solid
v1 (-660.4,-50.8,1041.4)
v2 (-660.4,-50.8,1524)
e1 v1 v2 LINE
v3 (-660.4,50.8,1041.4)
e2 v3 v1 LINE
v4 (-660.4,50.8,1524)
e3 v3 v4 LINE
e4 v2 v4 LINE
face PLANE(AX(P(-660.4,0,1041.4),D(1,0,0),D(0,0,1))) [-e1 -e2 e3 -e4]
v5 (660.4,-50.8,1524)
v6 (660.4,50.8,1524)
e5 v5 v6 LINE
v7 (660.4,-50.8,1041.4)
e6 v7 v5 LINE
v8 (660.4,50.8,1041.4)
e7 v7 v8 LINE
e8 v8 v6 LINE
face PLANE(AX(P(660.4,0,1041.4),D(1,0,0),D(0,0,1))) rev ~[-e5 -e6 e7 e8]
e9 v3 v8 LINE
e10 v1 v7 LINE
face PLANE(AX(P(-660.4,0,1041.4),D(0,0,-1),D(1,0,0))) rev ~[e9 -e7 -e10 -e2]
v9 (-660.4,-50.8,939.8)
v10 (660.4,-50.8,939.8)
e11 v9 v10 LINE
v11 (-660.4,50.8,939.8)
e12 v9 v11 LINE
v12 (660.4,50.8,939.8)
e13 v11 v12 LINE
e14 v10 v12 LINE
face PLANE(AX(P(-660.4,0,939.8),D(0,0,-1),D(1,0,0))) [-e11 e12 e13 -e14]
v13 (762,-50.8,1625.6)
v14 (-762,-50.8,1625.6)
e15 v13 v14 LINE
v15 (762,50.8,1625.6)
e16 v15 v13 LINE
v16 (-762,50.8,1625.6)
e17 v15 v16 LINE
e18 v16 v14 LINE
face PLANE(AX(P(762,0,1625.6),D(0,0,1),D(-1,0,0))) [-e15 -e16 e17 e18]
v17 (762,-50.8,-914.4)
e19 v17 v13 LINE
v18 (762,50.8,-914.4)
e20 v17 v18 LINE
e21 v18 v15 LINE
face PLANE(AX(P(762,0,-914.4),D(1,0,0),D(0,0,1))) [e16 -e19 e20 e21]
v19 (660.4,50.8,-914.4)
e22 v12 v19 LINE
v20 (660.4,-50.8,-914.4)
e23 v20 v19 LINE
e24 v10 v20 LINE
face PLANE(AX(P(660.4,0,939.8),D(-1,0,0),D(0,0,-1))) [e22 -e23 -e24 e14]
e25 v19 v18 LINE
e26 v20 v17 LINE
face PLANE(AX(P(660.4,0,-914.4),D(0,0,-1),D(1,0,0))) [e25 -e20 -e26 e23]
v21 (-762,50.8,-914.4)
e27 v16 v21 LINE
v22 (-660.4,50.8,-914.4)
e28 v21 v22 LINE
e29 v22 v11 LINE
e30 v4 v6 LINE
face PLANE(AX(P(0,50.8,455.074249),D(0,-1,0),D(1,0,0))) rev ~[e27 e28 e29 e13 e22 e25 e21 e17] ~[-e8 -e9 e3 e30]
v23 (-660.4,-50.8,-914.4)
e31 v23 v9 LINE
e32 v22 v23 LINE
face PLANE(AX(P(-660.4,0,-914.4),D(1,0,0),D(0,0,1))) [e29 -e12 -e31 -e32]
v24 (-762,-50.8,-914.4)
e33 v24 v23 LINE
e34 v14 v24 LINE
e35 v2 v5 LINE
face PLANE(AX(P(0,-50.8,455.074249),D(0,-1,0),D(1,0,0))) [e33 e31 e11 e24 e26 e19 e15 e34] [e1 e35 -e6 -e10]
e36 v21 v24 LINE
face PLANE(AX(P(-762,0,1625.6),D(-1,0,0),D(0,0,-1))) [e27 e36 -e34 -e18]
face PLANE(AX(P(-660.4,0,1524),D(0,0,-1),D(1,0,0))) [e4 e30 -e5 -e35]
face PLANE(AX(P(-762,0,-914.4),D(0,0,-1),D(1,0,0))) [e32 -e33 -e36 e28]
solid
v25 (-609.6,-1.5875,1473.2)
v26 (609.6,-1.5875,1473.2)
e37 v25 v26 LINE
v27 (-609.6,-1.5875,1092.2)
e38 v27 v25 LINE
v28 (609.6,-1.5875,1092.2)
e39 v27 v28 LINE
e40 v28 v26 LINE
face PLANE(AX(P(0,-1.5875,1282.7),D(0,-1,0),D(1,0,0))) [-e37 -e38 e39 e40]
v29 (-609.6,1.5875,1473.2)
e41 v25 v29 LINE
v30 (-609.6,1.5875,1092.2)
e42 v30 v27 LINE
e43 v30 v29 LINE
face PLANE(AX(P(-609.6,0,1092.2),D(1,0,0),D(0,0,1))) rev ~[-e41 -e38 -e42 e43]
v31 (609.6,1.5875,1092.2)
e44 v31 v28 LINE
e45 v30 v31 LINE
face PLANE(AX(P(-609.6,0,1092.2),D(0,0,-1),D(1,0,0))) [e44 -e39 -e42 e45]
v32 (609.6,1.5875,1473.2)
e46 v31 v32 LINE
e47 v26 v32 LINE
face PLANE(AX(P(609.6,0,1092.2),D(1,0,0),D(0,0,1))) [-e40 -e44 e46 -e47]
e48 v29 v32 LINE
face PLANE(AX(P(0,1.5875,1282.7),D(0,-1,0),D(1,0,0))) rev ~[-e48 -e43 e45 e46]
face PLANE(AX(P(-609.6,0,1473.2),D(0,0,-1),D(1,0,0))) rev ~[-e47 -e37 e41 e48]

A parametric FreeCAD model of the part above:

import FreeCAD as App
import Part
import Sketcher

V = App.Vector
Q = App.Units.Quantity


def add_polygon(sketch, points):
    """Adds a closed chain of lines whose ends are joined by coincident constraints."""
    first, n = sketch.GeometryCount, len(points)
    for a, b in zip(points, points[1:] + points[:1]):
        sketch.addGeometry(Part.LineSegment(App.Vector(*a, 0), App.Vector(*b, 0)), False)
    for i in range(n):
        sketch.addConstraint(Sketcher.Constraint("Coincident", first + i, 2, first + (i + 1) % n, 1))

doc = App.newDocument("Part")
body = doc.addObject("PartDesign::Body", "Body")

sketch1 = body.newObject("Sketcher::SketchObject", "Sketch")
sketch1.AttachmentSupport = (doc.getObject("XZ_Plane"), [""])
sketch1.MapMode = "FlatFace"
add_polygon(sketch1, [(762, -914), (762, 1626), (-762, 1626), (-762, -914), (-660, -914), (-660, 940), (660, 940), (660, -914)])
add_polygon(sketch1, [(660, 1041), (-660, 1041), (-660, 1524), (660, 1524)])
sketch1.addConstraint(Sketcher.Constraint("Vertical", 0))
sketch1.addConstraint(Sketcher.Constraint("Horizontal", 1))
sketch1.addConstraint(Sketcher.Constraint("Vertical", 2))
sketch1.addConstraint(Sketcher.Constraint("Horizontal", 3))
sketch1.addConstraint(Sketcher.Constraint("Vertical", 4))
sketch1.addConstraint(Sketcher.Constraint("Horizontal", 5))
sketch1.addConstraint(Sketcher.Constraint("Vertical", 6))
sketch1.addConstraint(Sketcher.Constraint("Horizontal", 7))
sketch1.addConstraint(Sketcher.Constraint("Horizontal", 8))
sketch1.addConstraint(Sketcher.Constraint("Vertical", 9))
sketch1.addConstraint(Sketcher.Constraint("Horizontal", 10))
sketch1.addConstraint(Sketcher.Constraint("Vertical", 11))
sketch1.addConstraint(Sketcher.Constraint("Symmetric", 3, 2, 6, 2, -2))
sketch1.addConstraint(Sketcher.Constraint("Vertical", 4, 2, 8, 2))
sketch1.addConstraint(Sketcher.Constraint("Vertical", 6, 2, 10, 2))
sketch1.addConstraint(Sketcher.Constraint("Equal", 3, 7))
sketch1.addConstraint(Sketcher.Constraint("DistanceX", 1, 2, 1, 1, Q("60 in")))
sketch1.addConstraint(Sketcher.Constraint("DistanceX", 3, 1, 3, 2, Q("4 in")))
sketch1.addConstraint(Sketcher.Constraint("DistanceY", 0, 1, 0, 2, Q("100 in")))
sketch1.addConstraint(Sketcher.Constraint("DistanceY", 4, 1, 4, 2, Q("73 in")))
sketch1.addConstraint(Sketcher.Constraint("DistanceY", 9, 1, 9, 2, Q("19 in")))
sketch1.addConstraint(Sketcher.Constraint("DistanceY", -1, 1, 0, 2, Q("64 in")))
sketch1.addConstraint(Sketcher.Constraint("DistanceY", -1, 1, 8, 2, Q("41 in")))
pad1 = body.newObject("PartDesign::Pad", "Pad")
pad1.Profile = sketch1
pad1.Length = Q("4 in")
pad1.Midplane = True
body2 = doc.addObject("PartDesign::Body", "Body001")

sketch2 = body2.newObject("Sketcher::SketchObject", "Sketch001")
sketch2.AttachmentSupport = (doc.getObject("XZ_Plane001"), [""])
sketch2.MapMode = "FlatFace"
add_polygon(sketch2, [(-610, 1473), (-610, 1092), (610, 1092), (610, 1473)])
sketch2.addConstraint(Sketcher.Constraint("Vertical", 0))
sketch2.addConstraint(Sketcher.Constraint("Horizontal", 1))
sketch2.addConstraint(Sketcher.Constraint("Vertical", 2))
sketch2.addConstraint(Sketcher.Constraint("Horizontal", 3))
sketch2.addConstraint(Sketcher.Constraint("DistanceX", 1, 1, 1, 2, Q("48 in")))
sketch2.addConstraint(Sketcher.Constraint("DistanceY", 0, 2, 0, 1, Q("15 in")))
sketch2.addConstraint(Sketcher.Constraint("DistanceX", 0, 2, -1, 1, Q("24 in")))
sketch2.addConstraint(Sketcher.Constraint("DistanceY", -1, 1, 0, 2, Q("43 in")))
pad2 = body2.newObject("PartDesign::Pad", "Pad001")
pad2.Profile = sketch2
pad2.Length = Q("0.125 in")
pad2.Midplane = True

doc.recompute()
